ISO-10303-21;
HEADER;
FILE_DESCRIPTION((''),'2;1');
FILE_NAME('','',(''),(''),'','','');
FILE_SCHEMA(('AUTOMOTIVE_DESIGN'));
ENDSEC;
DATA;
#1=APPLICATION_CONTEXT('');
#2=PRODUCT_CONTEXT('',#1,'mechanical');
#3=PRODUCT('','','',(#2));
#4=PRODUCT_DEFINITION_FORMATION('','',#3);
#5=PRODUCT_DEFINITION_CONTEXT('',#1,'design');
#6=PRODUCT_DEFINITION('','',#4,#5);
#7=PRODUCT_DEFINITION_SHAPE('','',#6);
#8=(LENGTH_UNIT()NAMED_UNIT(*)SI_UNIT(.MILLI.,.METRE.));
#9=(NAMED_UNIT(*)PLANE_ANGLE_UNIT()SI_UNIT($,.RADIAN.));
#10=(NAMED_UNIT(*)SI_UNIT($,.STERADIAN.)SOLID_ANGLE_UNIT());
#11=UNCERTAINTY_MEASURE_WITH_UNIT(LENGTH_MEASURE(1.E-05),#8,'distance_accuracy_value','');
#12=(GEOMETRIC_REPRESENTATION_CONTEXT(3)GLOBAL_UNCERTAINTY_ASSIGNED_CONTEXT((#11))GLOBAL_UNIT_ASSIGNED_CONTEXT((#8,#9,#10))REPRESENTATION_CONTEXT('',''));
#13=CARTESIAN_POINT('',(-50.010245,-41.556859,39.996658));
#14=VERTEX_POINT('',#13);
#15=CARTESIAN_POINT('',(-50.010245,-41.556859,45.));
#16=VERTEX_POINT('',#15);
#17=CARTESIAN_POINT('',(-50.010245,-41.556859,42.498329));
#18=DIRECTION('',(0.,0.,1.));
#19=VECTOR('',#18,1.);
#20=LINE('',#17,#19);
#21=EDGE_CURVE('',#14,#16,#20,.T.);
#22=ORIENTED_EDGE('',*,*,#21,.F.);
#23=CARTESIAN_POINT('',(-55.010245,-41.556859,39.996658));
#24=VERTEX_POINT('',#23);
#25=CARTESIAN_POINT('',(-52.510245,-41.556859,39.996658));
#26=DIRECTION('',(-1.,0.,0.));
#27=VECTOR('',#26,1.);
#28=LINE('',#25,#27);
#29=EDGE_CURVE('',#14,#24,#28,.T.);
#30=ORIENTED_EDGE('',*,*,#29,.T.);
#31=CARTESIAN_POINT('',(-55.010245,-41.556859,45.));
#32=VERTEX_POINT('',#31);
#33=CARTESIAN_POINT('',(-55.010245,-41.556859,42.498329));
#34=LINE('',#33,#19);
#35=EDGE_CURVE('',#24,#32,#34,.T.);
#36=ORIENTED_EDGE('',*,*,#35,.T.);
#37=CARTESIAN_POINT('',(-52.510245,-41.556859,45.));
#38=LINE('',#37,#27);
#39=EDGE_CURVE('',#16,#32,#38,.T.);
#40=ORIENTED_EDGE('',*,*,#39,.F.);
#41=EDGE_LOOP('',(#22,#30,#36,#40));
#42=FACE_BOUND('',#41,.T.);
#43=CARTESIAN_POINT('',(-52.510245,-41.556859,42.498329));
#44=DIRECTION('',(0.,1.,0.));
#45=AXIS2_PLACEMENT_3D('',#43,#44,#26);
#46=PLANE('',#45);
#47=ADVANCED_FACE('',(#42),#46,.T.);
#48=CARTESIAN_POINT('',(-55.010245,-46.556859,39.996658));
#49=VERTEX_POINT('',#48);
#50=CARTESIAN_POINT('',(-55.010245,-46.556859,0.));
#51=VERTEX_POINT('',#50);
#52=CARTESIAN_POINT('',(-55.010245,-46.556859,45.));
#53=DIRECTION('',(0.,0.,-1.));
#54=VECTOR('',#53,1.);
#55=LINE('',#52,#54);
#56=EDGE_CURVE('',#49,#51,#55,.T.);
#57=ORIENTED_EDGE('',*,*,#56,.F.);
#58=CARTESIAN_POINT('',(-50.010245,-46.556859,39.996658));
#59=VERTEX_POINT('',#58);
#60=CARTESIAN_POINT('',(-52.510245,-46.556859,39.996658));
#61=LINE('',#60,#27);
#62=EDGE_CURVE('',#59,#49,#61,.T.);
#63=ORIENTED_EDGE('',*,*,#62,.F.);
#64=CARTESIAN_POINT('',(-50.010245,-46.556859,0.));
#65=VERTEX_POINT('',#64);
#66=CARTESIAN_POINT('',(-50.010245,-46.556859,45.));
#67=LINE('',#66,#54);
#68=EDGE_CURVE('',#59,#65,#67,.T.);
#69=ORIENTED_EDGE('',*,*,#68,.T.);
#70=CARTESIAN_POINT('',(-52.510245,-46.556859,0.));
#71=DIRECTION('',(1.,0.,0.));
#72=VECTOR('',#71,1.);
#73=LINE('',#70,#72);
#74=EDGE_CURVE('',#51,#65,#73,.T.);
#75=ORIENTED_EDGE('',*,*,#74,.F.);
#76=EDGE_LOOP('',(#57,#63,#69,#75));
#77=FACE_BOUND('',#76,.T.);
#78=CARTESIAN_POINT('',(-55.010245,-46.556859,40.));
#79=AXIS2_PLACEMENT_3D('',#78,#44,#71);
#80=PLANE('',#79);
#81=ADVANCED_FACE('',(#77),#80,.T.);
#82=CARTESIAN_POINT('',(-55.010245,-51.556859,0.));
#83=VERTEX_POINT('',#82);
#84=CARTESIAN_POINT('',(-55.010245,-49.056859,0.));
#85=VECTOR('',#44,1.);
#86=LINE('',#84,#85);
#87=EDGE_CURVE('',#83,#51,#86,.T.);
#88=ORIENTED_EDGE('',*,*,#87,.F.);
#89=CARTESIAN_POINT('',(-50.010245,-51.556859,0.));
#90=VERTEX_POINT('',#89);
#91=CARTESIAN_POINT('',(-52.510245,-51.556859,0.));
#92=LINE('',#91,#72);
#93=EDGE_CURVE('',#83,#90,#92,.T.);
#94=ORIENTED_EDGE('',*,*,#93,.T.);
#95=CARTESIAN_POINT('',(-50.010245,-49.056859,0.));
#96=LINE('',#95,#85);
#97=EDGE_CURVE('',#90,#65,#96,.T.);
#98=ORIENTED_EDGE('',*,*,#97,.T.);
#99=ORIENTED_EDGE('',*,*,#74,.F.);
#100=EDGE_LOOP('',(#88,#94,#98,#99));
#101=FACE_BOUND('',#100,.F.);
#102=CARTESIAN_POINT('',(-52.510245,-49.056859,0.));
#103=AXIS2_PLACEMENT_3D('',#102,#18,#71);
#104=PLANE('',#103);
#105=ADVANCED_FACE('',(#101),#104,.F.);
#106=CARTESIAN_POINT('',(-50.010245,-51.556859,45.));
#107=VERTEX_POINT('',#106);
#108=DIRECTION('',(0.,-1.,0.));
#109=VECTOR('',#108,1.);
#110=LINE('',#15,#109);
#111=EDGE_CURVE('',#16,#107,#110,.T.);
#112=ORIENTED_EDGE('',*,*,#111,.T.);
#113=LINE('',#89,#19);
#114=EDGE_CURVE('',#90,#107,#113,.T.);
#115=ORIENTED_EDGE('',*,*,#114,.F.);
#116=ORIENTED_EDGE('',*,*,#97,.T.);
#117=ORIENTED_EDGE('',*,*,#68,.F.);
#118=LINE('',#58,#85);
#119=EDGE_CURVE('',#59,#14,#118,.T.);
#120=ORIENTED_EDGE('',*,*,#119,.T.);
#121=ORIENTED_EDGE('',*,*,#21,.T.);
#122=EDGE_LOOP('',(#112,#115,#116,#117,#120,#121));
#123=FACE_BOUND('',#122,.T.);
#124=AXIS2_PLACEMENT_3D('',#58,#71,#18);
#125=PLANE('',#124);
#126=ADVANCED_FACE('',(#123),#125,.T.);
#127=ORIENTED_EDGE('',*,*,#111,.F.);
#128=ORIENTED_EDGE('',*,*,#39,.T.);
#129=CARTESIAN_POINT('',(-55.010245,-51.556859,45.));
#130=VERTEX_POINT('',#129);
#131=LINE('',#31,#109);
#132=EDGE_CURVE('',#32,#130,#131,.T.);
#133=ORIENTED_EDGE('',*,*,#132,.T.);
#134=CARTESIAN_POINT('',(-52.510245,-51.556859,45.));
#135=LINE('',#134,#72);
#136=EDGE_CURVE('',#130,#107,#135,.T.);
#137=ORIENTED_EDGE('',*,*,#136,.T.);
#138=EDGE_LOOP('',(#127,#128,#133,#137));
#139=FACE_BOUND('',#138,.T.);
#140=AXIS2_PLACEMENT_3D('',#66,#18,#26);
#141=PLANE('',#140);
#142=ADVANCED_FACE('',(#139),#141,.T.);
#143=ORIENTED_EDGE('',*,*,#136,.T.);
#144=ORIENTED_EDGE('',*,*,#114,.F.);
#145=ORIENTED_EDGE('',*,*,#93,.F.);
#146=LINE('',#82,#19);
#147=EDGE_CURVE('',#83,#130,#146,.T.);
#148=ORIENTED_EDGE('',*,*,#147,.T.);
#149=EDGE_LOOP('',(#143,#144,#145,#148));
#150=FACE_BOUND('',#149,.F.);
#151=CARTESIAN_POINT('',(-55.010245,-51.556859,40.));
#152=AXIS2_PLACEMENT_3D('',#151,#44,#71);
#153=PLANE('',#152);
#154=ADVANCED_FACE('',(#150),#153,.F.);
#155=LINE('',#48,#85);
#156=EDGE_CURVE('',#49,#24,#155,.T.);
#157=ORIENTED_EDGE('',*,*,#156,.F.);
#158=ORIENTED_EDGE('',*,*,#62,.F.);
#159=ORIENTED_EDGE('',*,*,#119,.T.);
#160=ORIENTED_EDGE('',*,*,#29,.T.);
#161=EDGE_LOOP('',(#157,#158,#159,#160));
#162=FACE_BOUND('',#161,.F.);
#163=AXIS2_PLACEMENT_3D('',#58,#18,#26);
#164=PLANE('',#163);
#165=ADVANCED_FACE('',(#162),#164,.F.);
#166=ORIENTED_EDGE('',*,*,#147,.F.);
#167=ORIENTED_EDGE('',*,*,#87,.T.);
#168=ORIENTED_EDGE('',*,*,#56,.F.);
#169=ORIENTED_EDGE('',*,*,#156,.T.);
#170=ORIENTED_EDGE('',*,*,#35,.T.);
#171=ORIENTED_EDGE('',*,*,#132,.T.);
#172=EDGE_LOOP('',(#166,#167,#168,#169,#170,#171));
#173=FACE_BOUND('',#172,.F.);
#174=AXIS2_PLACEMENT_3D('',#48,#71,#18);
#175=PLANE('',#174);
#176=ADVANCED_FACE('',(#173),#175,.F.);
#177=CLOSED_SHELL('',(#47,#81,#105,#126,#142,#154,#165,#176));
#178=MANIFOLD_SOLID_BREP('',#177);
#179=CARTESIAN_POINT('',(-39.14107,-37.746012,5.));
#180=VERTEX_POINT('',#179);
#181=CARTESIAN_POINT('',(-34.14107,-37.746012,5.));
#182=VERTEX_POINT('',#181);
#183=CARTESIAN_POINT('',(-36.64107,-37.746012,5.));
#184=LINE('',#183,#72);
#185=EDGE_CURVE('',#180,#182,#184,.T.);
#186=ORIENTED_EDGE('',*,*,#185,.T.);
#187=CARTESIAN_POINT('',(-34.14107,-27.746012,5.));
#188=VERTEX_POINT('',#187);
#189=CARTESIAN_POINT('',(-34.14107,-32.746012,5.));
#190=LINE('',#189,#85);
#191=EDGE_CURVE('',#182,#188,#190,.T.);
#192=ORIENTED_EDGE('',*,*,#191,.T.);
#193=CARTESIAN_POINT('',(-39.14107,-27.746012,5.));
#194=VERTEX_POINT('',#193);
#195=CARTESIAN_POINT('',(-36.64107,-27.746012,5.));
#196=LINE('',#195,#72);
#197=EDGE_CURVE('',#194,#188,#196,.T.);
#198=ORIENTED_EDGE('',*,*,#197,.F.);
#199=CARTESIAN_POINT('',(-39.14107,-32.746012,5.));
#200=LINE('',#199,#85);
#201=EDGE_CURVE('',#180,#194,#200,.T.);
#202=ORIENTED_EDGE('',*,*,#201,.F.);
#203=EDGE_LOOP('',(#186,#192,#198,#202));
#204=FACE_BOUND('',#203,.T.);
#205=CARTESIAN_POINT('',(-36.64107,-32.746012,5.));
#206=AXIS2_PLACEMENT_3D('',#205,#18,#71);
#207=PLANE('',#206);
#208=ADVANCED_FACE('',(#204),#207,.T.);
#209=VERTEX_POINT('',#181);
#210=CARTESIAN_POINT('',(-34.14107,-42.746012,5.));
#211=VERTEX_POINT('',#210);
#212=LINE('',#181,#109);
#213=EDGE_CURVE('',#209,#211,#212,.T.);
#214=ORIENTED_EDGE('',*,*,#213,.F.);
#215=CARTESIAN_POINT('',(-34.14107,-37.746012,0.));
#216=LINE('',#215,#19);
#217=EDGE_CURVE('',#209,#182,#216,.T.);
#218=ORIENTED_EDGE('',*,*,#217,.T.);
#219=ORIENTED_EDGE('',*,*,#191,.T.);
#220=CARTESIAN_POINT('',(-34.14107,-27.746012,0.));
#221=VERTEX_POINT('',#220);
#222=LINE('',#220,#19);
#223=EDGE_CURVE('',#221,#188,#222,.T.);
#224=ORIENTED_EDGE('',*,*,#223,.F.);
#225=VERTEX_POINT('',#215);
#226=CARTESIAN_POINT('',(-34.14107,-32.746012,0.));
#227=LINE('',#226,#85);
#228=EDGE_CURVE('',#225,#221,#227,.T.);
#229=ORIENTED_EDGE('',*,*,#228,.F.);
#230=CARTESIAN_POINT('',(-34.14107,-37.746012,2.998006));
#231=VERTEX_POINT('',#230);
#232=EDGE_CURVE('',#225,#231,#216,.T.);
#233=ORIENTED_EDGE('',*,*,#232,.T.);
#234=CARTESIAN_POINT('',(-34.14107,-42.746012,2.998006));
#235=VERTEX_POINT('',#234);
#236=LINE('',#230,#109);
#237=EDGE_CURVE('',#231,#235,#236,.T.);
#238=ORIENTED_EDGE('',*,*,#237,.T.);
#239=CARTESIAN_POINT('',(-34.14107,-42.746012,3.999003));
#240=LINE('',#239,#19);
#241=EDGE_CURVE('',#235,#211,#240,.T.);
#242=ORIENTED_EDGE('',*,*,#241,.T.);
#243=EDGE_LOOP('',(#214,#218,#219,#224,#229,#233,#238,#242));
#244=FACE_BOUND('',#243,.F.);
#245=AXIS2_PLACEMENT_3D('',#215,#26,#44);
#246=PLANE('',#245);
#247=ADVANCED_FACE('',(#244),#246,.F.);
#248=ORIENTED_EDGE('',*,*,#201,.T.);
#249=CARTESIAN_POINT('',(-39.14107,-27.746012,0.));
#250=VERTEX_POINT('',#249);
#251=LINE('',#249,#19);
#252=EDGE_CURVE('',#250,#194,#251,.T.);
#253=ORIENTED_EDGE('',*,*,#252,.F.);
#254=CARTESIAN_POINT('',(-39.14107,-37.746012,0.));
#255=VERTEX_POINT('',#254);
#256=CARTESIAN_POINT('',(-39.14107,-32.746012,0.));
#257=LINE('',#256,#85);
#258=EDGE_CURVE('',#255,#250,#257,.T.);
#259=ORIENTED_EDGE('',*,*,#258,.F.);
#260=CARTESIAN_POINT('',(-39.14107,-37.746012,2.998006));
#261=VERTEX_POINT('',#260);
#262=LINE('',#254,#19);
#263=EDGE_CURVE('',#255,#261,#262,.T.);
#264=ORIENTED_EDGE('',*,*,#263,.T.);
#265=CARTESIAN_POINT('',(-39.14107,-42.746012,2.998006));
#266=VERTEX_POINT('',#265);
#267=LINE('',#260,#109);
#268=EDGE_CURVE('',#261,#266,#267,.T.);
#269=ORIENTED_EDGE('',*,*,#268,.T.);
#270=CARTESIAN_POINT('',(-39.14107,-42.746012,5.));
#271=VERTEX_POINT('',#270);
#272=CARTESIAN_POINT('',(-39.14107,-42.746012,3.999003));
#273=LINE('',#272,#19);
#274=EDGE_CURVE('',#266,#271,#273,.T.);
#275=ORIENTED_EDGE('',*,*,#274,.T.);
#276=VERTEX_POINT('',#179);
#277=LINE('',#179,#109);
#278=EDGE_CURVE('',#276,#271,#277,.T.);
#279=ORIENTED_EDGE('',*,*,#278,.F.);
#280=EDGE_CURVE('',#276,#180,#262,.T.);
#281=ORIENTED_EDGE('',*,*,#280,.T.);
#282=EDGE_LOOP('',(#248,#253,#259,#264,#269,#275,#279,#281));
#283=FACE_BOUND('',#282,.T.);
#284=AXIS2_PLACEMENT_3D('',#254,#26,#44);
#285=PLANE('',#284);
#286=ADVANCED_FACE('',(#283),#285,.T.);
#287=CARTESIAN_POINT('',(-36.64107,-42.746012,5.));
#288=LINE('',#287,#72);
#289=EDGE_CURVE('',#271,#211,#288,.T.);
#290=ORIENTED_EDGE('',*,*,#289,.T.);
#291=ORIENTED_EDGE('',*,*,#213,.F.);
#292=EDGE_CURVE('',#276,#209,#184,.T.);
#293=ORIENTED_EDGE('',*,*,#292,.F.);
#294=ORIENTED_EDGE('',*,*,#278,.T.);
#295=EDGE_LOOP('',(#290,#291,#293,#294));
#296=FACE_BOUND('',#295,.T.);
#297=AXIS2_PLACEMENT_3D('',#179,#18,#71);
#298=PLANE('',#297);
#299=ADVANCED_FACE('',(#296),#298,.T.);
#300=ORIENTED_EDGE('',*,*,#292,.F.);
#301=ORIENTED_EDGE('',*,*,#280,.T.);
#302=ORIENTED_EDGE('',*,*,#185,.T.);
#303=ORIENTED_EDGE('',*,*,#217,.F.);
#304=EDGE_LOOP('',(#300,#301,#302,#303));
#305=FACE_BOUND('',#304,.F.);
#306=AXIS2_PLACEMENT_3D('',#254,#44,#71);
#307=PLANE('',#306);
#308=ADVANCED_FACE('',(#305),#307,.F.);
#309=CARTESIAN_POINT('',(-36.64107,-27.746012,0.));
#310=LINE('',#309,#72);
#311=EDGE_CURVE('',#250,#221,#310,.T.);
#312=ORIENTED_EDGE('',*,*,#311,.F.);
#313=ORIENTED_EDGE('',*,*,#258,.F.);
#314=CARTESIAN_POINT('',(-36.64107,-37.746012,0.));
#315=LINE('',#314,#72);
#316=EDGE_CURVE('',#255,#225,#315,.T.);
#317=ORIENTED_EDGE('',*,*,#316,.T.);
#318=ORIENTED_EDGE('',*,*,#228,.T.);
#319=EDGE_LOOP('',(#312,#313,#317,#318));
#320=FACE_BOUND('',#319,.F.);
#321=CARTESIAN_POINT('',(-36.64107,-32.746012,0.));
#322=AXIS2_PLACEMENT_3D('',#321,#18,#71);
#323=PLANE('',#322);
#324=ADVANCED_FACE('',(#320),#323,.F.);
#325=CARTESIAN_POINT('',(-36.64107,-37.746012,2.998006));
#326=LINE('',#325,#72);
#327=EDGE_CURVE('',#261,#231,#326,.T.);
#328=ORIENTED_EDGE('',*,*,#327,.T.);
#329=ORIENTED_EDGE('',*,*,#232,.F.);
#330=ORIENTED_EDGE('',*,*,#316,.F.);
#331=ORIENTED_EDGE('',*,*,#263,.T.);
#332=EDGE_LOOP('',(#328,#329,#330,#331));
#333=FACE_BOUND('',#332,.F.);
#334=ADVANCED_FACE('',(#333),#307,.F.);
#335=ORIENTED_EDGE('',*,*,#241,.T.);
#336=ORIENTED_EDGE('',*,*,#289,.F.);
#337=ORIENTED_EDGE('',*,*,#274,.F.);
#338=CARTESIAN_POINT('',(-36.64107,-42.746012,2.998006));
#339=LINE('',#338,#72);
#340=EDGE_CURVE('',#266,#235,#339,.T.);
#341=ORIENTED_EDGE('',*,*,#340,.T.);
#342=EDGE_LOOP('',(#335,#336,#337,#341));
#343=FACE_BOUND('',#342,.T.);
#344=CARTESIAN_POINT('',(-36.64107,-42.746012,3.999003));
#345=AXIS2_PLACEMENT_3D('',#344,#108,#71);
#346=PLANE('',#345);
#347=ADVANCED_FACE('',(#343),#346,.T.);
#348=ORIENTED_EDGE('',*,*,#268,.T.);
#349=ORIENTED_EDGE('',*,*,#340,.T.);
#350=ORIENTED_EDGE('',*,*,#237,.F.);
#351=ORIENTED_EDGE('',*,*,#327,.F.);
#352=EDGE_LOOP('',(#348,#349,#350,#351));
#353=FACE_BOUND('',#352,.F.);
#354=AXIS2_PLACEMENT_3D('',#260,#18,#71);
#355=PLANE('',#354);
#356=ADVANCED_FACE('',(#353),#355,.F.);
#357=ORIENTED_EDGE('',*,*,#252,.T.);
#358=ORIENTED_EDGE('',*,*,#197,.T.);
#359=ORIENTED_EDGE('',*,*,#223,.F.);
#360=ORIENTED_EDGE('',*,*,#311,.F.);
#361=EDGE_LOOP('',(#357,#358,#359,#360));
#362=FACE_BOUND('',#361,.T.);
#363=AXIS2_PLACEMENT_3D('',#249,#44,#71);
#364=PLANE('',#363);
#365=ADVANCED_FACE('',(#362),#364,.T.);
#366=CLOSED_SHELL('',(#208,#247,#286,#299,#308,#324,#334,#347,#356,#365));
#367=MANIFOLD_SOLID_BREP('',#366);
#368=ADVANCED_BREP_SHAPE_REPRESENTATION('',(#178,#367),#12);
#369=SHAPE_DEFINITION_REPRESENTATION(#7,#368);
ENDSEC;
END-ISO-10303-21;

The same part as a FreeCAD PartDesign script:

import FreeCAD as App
import Part
import Sketcher
Q = App.Units.Quantity

doc = App.newDocument("Part")
body = doc.addObject("PartDesign::Body", "Body")

# Sketch on XY plane
sketch1 = body.newObject("Sketcher::SketchObject", "Sketch")
sketch1.AttachmentSupport = (doc.getObject("XY_Plane"), [""])
sketch1.MapMode = "FlatFace"
sketch1.addGeometry(Part.LineSegment(App.Vector(-55.010245, -46.556859, 0), App.Vector(-55.010245, -51.556859, 0)), False)
sketch1.addGeometry(Part.LineSegment(App.Vector(-55.010245, -51.556859, 0), App.Vector(-50.010245, -51.556859, 0)), False)
sketch1.addGeometry(Part.LineSegment(App.Vector(-50.010245, -51.556859, 0), App.Vector(-50.010245, -46.556859, 0)), False)
sketch1.addGeometry(Part.LineSegment(App.Vector(-50.010245, -46.556859, 0), App.Vector(-55.010245, -46.556859, 0)), False)
sketch1.addConstraint(Sketcher.Constraint("Coincident", 0, 2, 1, 1))
sketch1.addConstraint(Sketcher.Constraint("Coincident", 1, 2, 2, 1))
sketch1.addConstraint(Sketcher.Constraint("Coincident", 2, 2, 3, 1))
sketch1.addConstraint(Sketcher.Constraint("Coincident", 3, 2, 0, 1))
sketch1.addConstraint(Sketcher.Constraint("Vertical", 0))
sketch1.addConstraint(Sketcher.Constraint("Horizontal", 1))
sketch1.addConstraint(Sketcher.Constraint("Vertical", 2))
sketch1.addConstraint(Sketcher.Constraint("Horizontal", 3))
sketch1.addConstraint(Sketcher.Constraint("Equal", 3, 0))
sketch1.addConstraint(Sketcher.Constraint("DistanceX", 1, 1, 1, 2, Q("5 mm")))
sketch1.addConstraint(Sketcher.Constraint("DistanceY", 0, 2, -1, 1, Q("51.556859 mm")))
sketch1.addConstraint(Sketcher.Constraint("DistanceX", 0, 2, -1, 1, Q("55.010245 mm")))
pad1 = body.newObject("PartDesign::Pad", "Pad")
pad1.Profile = sketch1
pad1.Length = 40

# Sketch on XY plane
sketch2 = body.newObject("Sketcher::SketchObject", "Sketch001")
sketch2.AttachmentSupport = (doc.getObject("XY_Plane"), [""])
sketch2.MapMode = "FlatFace"
sketch2.AttachmentOffset = App.Placement(App.Vector(0, 0, 40), App.Rotation())
sketch2.addGeometry(Part.LineSegment(App.Vector(-55.010245, -46.556859, 0), App.Vector(-55.010245, -51.556859, 0)), False)
sketch2.addGeometry(Part.LineSegment(App.Vector(-55.010245, -51.556859, 0), App.Vector(-50.010245, -51.556859, 0)), False)
sketch2.addGeometry(Part.LineSegment(App.Vector(-50.010245, -51.556859, 0), App.Vector(-50.010245, -46.556859, 0)), False)
sketch2.addGeometry(Part.LineSegment(App.Vector(-50.010245, -46.556859, 0), App.Vector(-55.010245, -46.556859, 0)), False)
sketch2.addConstraint(Sketcher.Constraint("Coincident", 0, 2, 1, 1))
sketch2.addConstraint(Sketcher.Constraint("Coincident", 1, 2, 2, 1))
sketch2.addConstraint(Sketcher.Constraint("Coincident", 2, 2, 3, 1))
sketch2.addConstraint(Sketcher.Constraint("Coincident", 3, 2, 0, 1))
sketch2.addConstraint(Sketcher.Constraint("Vertical", 0))
sketch2.addConstraint(Sketcher.Constraint("Horizontal", 1))
sketch2.addConstraint(Sketcher.Constraint("Vertical", 2))
sketch2.addConstraint(Sketcher.Constraint("Horizontal", 3))
sketch2.addConstraint(Sketcher.Constraint("Equal", 3, 0))
sketch2.addConstraint(Sketcher.Constraint("DistanceX", 1, 1, 1, 2, Q("5 mm")))
sketch2.addConstraint(Sketcher.Constraint("DistanceY", 0, 2, -1, 1, Q("51.556859 mm")))
sketch2.addConstraint(Sketcher.Constraint("DistanceX", 0, 2, -1, 1, Q("55.010245 mm")))
pad2 = body.newObject("PartDesign::Pad", "Pad001")
pad2.Profile = sketch2
pad2.Length = 5

# Sketch on XZ plane
sketch3 = body.newObject("Sketcher::SketchObject", "Sketch002")
sketch3.AttachmentSupport = (doc.getObject("XZ_Plane"), [""])
sketch3.MapMode = "FlatFace"
sketch3.AttachmentOffset = App.Placement(App.Vector(0, 0, 46.556859), App.Rotation())
sketch3.addGeometry(Part.LineSegment(App.Vector(-50.010245, 45, 0), App.Vector(-50.010245, 39.996658, 0)), False)
sketch3.addGeometry(Part.LineSegment(App.Vector(-50.010245, 39.996658, 0), App.Vector(-55.010245, 39.996658, 0)), False)
sketch3.addGeometry(Part.LineSegment(App.Vector(-55.010245, 39.996658, 0), App.Vector(-55.010245, 45, 0)), False)
sketch3.addGeometry(Part.LineSegment(App.Vector(-55.010245, 45, 0), App.Vector(-50.010245, 45, 0)), False)
sketch3.addConstraint(Sketcher.Constraint("Coincident", 0, 2, 1, 1))
sketch3.addConstraint(Sketcher.Constraint("Coincident", 1, 2, 2, 1))
sketch3.addConstraint(Sketcher.Constraint("Coincident", 2, 2, 3, 1))
sketch3.addConstraint(Sketcher.Constraint("Coincident", 3, 2, 0, 1))
sketch3.addConstraint(Sketcher.Constraint("Vertical", 0))
sketch3.addConstraint(Sketcher.Constraint("Horizontal", 1))
sketch3.addConstraint(Sketcher.Constraint("Vertical", 2))
sketch3.addConstraint(Sketcher.Constraint("Horizontal", 3))
sketch3.addConstraint(Sketcher.Constraint("DistanceX", 1, 2, 1, 1, Q("5 mm")))
sketch3.addConstraint(Sketcher.Constraint("DistanceY", -1, 1, 2, 2, Q("45 mm")))
sketch3.addConstraint(Sketcher.Constraint("DistanceY", 0, 2, 0, 1, Q("5.003342 mm")))
sketch3.addConstraint(Sketcher.Constraint("DistanceX", 0, 2, -1, 1, Q("50.010245 mm")))
pad3 = body.newObject("PartDesign::Pad", "Pad002")
pad3.Profile = sketch3
pad3.Length = 5
pad3.Reversed = True
body2 = doc.addObject("PartDesign::Body", "Body001")

# Sketch on XY plane
sketch4 = body2.newObject("Sketcher::SketchObject", "Sketch003")
sketch4.AttachmentSupport = (doc.getObject("XY_Plane001"), [""])
sketch4.MapMode = "FlatFace"
sketch4.addGeometry(Part.LineSegment(App.Vector(-39.14107, -27.746012, 0), App.Vector(-39.14107, -37.746012, 0)), False)
sketch4.addGeometry(Part.LineSegment(App.Vector(-39.14107, -37.746012, 0), App.Vector(-34.14107, -37.746012, 0)), False)
sketch4.addGeometry(Part.LineSegment(App.Vector(-34.14107, -37.746012, 0), App.Vector(-34.14107, -27.746012, 0)), False)
sketch4.addGeometry(Part.LineSegment(App.Vector(-34.14107, -27.746012, 0), App.Vector(-39.14107, -27.746012, 0)), False)
sketch4.addConstraint(Sketcher.Constraint("Coincident", 0, 2, 1, 1))
sketch4.addConstraint(Sketcher.Constraint("Coincident", 1, 2, 2, 1))
sketch4.addConstraint(Sketcher.Constraint("Coincident", 2, 2, 3, 1))
sketch4.addConstraint(Sketcher.Constraint("Coincident", 3, 2, 0, 1))
sketch4.addConstraint(Sketcher.Constraint("Vertical", 0))
sketch4.addConstraint(Sketcher.Constraint("Horizontal", 1))
sketch4.addConstraint(Sketcher.Constraint("Vertical", 2))
sketch4.addConstraint(Sketcher.Constraint("Horizontal", 3))
sketch4.addConstraint(Sketcher.Constraint("DistanceX", 1, 1, 1, 2, Q("5 mm")))
sketch4.addConstraint(Sketcher.Constraint("DistanceY", 0, 2, 0, 1, Q("10 mm")))
sketch4.addConstraint(Sketcher.Constraint("DistanceX", 0, 2, -1, 1, Q("39.14107 mm")))
sketch4.addConstraint(Sketcher.Constraint("DistanceY", 0, 2, -1, 1, Q("37.746012 mm")))
pad4 = body2.newObject("PartDesign::Pad", "Pad003")
pad4.Profile = sketch4
pad4.Length = 5

# Sketch on XZ plane
sketch5 = body2.newObject("Sketcher::SketchObject", "Sketch004")
sketch5.AttachmentSupport = (doc.getObject("XZ_Plane001"), [""])
sketch5.MapMode = "FlatFace"
sketch5.AttachmentOffset = App.Placement(App.Vector(0, 0, 37.746012), App.Rotation())
sketch5.addGeometry(Part.LineSegment(App.Vector(-39.14107, 5, 0), App.Vector(-39.14107, 2.998006, 0)), False)
sketch5.addGeometry(Part.LineSegment(App.Vector(-39.14107, 2.998006, 0), App.Vector(-34.14107, 2.998006, 0)), False)
sketch5.addGeometry(Part.LineSegment(App.Vector(-34.14107, 2.998006, 0), App.Vector(-34.14107, 5, 0)), False)
sketch5.addGeometry(Part.LineSegment(App.Vector(-34.14107, 5, 0), App.Vector(-39.14107, 5, 0)), False)
sketch5.addConstraint(Sketcher.Constraint("Coincident", 0, 2, 1, 1))
sketch5.addConstraint(Sketcher.Constraint("Coincident", 1, 2, 2, 1))
sketch5.addConstraint(Sketcher.Constraint("Coincident", 2, 2, 3, 1))
sketch5.addConstraint(Sketcher.Constraint("Coincident", 3, 2, 0, 1))
sketch5.addConstraint(Sketcher.Constraint("Vertical", 0))
sketch5.addConstraint(Sketcher.Constraint("Horizontal", 1))
sketch5.addConstraint(Sketcher.Constraint("Vertical", 2))
sketch5.addConstraint(Sketcher.Constraint("Horizontal", 3))
sketch5.addConstraint(Sketcher.Constraint("DistanceX", 1, 1, 1, 2, Q("5 mm")))
sketch5.addConstraint(Sketcher.Constraint("DistanceY", -1, 1, 2, 2, Q("5 mm")))
sketch5.addConstraint(Sketcher.Constraint("DistanceY", 0, 2, 0, 1, Q("2.001993 mm")))
sketch5.addConstraint(Sketcher.Constraint("DistanceX", 0, 2, -1, 1, Q("39.14107 mm")))
pad5 = body2.newObject("PartDesign::Pad", "Pad004")
pad5.Profile = sketch5
pad5.Length = 5

doc.recompute()
